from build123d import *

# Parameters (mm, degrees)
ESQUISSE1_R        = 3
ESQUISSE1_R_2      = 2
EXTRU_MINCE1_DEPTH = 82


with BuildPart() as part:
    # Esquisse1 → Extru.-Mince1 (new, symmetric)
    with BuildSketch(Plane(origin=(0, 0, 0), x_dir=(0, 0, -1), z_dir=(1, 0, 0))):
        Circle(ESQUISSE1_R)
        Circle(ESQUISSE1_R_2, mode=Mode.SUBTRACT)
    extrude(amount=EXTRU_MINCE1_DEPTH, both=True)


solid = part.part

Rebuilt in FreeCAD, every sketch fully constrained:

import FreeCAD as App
import Part
import Sketcher

doc = App.newDocument("Part")
body = doc.addObject("PartDesign::Body", "Body")

# Sketch on YZ plane
sketch1 = body.newObject("Sketcher::SketchObject", "Sketch")
sketch1.AttachmentSupport = (doc.getObject("YZ_Plane"), [""])
sketch1.MapMode = "FlatFace"
sketch1.addGeometry(Part.Circle(App.Vector(0, 0, 0), App.Vector(0, 0, 1), 3), False)
sketch1.addGeometry(Part.Circle(App.Vector(0, 0, 0), App.Vector(0, 0, 1), 2), False)
sketch1.addConstraint(Sketcher.Constraint("Coincident", 0, 3, -1, 1))
sketch1.addConstraint(Sketcher.Constraint("Coincident", 1, 3, -1, 1))
sketch1.addConstraint(Sketcher.Constraint("Diameter", 0, 6.0))
sketch1.addConstraint(Sketcher.Constraint("Diameter", 1, 4.0))
pad1 = body.newObject("PartDesign::Pad", "Pad")
pad1.Profile = sketch1
pad1.Length = 164
pad1.Midplane = True

doc.recompute()
